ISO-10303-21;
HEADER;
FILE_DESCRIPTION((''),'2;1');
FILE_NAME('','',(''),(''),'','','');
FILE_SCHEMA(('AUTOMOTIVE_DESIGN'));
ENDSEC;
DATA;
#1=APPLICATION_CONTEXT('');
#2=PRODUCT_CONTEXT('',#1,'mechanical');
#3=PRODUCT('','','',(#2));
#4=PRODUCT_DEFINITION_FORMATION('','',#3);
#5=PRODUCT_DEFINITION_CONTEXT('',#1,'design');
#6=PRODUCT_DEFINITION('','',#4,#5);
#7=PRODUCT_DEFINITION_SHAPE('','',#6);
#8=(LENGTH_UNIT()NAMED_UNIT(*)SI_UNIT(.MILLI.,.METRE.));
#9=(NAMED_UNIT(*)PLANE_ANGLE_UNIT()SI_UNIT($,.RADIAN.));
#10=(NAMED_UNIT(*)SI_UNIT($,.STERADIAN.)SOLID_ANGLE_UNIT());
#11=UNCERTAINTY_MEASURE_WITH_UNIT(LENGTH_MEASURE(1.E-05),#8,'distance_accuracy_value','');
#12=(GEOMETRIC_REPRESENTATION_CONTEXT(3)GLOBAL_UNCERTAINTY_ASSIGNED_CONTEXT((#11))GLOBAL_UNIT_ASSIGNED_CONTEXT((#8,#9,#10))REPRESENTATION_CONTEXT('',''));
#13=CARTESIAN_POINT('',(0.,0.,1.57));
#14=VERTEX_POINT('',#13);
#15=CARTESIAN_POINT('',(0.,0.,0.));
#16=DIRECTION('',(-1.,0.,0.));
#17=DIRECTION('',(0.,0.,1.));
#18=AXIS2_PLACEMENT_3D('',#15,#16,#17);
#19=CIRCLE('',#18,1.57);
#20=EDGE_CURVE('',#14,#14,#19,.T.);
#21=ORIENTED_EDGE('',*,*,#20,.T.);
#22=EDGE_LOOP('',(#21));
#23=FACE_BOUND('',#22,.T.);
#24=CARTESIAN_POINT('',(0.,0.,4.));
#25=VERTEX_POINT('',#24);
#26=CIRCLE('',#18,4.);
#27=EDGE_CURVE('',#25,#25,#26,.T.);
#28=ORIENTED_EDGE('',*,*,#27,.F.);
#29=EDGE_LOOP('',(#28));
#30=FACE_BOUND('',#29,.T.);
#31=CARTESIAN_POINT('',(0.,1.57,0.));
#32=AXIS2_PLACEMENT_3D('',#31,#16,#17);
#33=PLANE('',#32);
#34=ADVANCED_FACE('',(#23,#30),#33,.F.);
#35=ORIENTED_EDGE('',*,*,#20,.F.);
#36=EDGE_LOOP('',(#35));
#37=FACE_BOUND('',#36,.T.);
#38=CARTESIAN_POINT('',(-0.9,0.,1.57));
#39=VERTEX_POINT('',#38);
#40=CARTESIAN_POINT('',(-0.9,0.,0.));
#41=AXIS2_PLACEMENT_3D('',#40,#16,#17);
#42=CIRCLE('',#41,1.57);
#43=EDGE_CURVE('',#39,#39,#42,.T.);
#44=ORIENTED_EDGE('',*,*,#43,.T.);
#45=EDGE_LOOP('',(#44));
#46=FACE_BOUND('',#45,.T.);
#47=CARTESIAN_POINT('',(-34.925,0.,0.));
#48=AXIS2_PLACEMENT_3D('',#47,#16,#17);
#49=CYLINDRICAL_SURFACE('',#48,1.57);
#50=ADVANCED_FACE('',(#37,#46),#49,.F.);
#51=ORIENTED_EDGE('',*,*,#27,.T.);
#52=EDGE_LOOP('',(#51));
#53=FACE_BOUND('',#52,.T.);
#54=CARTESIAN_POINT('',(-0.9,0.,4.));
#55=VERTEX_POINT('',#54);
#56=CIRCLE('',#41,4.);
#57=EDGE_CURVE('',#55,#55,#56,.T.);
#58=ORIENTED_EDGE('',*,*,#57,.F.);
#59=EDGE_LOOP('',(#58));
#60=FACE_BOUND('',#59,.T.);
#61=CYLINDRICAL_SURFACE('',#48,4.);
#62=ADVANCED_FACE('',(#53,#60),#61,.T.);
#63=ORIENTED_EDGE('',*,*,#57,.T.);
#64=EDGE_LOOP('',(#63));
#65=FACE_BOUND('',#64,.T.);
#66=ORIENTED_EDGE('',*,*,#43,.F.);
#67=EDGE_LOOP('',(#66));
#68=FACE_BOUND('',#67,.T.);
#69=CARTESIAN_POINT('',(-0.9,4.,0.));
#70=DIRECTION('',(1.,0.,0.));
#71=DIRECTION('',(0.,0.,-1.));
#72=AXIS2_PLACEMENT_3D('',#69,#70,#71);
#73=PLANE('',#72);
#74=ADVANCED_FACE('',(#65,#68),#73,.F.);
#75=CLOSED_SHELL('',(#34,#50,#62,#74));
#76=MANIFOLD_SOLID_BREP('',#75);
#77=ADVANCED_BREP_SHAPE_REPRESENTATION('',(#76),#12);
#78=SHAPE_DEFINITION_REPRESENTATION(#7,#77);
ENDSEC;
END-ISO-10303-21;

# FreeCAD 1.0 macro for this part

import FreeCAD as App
import Part
import Sketcher


def add_polygon(sketch, points):
    """Adds a closed chain of lines whose ends are joined by coincident constraints."""
    first, n = sketch.GeometryCount, len(points)
    for a, b in zip(points, points[1:] + points[:1]):
        sketch.addGeometry(Part.LineSegment(App.Vector(*a, 0), App.Vector(*b, 0)), False)
    for i in range(n):
        sketch.addConstraint(Sketcher.Constraint("Coincident", first + i, 2, first + (i + 1) % n, 1))

doc = App.newDocument("Part")
body = doc.addObject("PartDesign::Body", "Body")

# Sketch on XY plane
sketch1 = body.newObject("Sketcher::SketchObject", "Sketch")
sketch1.AttachmentSupport = (doc.getObject("XY_Plane"), [""])
sketch1.MapMode = "FlatFace"
add_polygon(sketch1, [(-0.9, 4), (-0.9, 1.6), (0, 1.6), (0, 4)])  # lines 0-3
sketch1.addConstraint([
    Sketcher.Constraint("Vertical", 0),
    Sketcher.Constraint("Horizontal", 1),
    Sketcher.Constraint("Vertical", 2),
    Sketcher.Constraint("Horizontal", 3),
    Sketcher.Constraint("PointOnObject", 1, 2, -2),
    Sketcher.Constraint("DistanceX", 1, 1, 1, 2, 0.9),
    Sketcher.Constraint("DistanceY", -1, 1, 2, 2, 4.0),
    Sketcher.Constraint("DistanceY", 0, 2, 0, 1, 2.43),
])
revolution = body.newObject("PartDesign::Revolution", "Revolution")
revolution.Profile = sketch1
revolution.ReferenceAxis = (sketch1, ["H_Axis"])
revolution.Angle = 360

doc.recompute()
